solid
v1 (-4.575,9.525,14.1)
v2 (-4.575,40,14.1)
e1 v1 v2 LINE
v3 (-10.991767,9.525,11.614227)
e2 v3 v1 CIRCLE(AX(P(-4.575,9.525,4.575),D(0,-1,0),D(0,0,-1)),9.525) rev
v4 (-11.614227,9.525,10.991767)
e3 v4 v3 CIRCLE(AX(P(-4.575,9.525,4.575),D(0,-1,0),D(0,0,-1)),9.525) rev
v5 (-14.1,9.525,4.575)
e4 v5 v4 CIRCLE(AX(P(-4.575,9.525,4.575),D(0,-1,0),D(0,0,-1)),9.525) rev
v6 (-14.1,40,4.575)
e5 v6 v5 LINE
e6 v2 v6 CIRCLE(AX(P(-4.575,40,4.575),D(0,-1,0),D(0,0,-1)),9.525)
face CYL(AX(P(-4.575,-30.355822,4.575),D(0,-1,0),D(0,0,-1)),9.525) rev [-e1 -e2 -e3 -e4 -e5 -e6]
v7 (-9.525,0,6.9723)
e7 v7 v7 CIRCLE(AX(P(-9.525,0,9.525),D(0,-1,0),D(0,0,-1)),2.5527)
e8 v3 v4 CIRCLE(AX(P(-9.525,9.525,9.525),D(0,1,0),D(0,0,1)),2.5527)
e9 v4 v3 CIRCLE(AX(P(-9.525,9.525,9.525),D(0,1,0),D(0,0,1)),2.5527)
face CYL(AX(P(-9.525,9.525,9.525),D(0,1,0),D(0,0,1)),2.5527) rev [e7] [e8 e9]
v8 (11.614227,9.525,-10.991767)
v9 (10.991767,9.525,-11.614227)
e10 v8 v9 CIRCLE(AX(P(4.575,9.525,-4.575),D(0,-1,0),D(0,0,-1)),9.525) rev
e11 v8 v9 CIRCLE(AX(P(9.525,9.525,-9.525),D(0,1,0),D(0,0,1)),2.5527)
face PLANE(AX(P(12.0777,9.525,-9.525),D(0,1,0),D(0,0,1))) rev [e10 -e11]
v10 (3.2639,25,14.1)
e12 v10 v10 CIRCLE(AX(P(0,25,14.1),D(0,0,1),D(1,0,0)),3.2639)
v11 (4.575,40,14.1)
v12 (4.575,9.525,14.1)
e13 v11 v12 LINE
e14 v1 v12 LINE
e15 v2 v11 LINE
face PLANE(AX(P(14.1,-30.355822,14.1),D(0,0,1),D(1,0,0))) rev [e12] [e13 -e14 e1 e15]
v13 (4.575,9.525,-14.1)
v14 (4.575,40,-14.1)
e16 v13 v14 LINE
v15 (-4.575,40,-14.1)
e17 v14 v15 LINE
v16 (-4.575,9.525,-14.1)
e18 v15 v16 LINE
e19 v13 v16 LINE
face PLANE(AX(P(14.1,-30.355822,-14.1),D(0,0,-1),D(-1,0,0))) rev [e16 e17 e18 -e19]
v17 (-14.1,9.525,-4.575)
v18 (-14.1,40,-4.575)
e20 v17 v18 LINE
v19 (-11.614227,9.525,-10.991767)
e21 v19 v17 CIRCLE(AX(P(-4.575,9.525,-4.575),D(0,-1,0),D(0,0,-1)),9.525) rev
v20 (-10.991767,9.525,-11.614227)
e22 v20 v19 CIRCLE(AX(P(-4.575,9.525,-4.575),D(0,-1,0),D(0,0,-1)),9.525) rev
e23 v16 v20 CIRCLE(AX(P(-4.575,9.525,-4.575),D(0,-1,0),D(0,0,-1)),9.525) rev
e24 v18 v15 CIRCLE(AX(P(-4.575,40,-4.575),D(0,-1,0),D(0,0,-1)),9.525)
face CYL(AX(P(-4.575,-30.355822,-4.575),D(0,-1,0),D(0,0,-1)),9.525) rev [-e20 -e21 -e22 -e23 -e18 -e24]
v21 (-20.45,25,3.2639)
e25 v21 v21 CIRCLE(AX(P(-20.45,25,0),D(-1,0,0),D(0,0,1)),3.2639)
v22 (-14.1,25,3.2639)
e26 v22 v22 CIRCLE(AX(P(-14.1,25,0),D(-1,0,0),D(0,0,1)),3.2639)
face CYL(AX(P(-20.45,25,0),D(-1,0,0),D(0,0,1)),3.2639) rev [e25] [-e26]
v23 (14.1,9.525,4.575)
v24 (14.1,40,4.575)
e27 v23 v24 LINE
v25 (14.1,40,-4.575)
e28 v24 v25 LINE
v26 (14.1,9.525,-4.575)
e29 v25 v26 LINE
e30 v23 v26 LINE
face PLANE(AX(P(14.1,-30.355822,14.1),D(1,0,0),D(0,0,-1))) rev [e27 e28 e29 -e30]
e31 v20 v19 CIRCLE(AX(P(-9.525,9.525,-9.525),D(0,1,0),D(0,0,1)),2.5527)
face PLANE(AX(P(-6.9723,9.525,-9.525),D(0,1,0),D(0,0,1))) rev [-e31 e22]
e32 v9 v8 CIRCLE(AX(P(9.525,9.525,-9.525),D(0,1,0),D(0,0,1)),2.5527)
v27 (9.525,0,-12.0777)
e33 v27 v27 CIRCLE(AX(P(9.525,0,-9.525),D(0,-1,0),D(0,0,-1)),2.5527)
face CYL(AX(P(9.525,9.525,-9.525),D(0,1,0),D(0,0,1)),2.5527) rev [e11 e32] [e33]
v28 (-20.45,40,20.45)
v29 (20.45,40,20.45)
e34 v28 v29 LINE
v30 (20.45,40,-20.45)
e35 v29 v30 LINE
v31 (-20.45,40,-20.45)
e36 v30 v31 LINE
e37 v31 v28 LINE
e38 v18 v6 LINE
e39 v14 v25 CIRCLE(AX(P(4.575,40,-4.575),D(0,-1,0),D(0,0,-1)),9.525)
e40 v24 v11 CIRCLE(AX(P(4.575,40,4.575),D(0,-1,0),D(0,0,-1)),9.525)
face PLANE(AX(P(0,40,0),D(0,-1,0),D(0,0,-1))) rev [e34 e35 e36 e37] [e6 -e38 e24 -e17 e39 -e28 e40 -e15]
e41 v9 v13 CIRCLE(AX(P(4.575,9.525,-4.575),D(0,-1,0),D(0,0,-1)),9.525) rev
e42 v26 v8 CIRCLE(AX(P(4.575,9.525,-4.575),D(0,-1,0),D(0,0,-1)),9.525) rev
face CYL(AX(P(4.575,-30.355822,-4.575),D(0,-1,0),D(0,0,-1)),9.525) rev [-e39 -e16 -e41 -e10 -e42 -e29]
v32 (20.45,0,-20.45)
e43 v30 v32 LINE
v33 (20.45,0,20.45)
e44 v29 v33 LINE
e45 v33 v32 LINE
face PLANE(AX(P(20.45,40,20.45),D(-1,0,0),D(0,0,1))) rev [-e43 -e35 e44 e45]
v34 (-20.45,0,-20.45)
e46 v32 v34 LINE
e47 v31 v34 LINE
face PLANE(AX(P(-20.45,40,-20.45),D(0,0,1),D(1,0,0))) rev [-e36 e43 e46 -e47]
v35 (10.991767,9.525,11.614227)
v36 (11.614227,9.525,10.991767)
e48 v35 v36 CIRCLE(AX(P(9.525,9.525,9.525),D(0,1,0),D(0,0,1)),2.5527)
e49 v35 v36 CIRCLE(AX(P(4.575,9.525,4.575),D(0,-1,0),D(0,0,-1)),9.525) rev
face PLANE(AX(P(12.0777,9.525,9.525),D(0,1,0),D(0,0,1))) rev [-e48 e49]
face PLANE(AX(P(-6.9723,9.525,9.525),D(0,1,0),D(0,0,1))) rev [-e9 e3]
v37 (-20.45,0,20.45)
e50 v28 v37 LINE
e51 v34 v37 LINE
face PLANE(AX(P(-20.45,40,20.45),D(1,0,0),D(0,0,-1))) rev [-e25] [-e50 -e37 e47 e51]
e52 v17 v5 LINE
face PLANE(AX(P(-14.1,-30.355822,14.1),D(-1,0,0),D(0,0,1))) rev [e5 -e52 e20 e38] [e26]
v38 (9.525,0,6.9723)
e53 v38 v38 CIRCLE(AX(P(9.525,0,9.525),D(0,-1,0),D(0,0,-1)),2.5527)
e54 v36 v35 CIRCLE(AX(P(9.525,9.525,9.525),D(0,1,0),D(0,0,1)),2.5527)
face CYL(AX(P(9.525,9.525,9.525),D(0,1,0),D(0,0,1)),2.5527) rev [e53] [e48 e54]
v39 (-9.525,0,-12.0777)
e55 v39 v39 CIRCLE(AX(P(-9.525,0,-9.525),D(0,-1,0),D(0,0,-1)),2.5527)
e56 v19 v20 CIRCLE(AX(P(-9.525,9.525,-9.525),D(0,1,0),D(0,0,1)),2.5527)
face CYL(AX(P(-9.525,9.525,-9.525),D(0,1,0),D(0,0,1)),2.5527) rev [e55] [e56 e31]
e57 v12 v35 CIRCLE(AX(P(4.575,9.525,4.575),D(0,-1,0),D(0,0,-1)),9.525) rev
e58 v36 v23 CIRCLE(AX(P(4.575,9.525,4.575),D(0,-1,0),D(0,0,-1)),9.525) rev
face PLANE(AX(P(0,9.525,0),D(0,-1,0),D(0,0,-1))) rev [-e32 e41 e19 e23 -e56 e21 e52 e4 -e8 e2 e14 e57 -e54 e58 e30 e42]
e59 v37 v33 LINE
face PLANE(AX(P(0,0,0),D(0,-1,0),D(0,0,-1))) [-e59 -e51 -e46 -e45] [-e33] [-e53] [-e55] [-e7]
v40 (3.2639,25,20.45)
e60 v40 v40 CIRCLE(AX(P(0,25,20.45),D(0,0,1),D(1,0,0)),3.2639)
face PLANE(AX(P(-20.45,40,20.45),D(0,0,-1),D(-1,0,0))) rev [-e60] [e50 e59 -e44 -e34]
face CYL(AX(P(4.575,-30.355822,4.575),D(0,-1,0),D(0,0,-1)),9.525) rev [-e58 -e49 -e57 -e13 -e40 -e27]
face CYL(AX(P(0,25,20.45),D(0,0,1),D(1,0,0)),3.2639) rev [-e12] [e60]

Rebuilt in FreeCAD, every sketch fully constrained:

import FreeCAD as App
import Part
import Sketcher
from FreeCAD import Vector
Q = App.Units.Quantity


def edges_at(feature, points):
    """Names of the edges that pass closest to the given points."""
    edges = feature.Shape.Edges
    near = lambda p: min(range(len(edges)), key=lambda i: edges[i].distToShape(Part.Vertex(*p))[0])
    return sorted({f"Edge{near(p) + 1}" for p in points})

doc = App.newDocument("Part")
body = doc.addObject("PartDesign::Body", "Body")

# Sketch on XZ plane
sketch1 = body.newObject("Sketcher::SketchObject", "Sketch")
sketch1.AttachmentSupport = (doc.getObject("XZ_Plane"), [""])
sketch1.MapMode = "FlatFace"
sketch1.addGeometry([
    Part.LineSegment(Vector(-20, -20, 0), Vector(-20, 20, 0)),
    Part.LineSegment(Vector(-20, 20, 0), Vector(20, 20, 0)),
    Part.LineSegment(Vector(20, 20, 0), Vector(20, -20, 0)),
    Part.LineSegment(Vector(20, -20, 0), Vector(-20, -20, 0)),
], False)
sketch1.addConstraint([
    Sketcher.Constraint("Coincident", 0, 2, 1, 1),
    Sketcher.Constraint("Coincident", 1, 2, 2, 1),
    Sketcher.Constraint("Coincident", 2, 2, 3, 1),
    Sketcher.Constraint("Coincident", 3, 2, 0, 1),
    Sketcher.Constraint("Vertical", 0),
    Sketcher.Constraint("Horizontal", 1),
    Sketcher.Constraint("Vertical", 2),
    Sketcher.Constraint("Horizontal", 3),
    Sketcher.Constraint("Symmetric", 0, 2, 2, 2, -1, 1),
    Sketcher.Constraint("Equal", 3, 0),
    Sketcher.Constraint("DistanceX", 1, 1, 1, 2, Q("40.9 mm")),
])
pad1 = body.newObject("PartDesign::Pad", "Pad")
pad1.Profile = sketch1
pad1.Length = 40
pad1.Reversed = True

# Sketch on XZ plane
sketch2 = body.newObject("Sketcher::SketchObject", "Sketch001")
sketch2.AttachmentSupport = (doc.getObject("XZ_Plane"), [""])
sketch2.MapMode = "FlatFace"
sketch2.AttachmentOffset = App.Placement(Vector(0, 0, -9.525), App.Rotation())
sketch2.addGeometry([
    Part.LineSegment(Vector(-14, -14, 0), Vector(-14, 14, 0)),
    Part.LineSegment(Vector(-14, 14, 0), Vector(14, 14, 0)),
    Part.LineSegment(Vector(14, 14, 0), Vector(14, -14, 0)),
    Part.LineSegment(Vector(14, -14, 0), Vector(-14, -14, 0)),
], False)
sketch2.addConstraint([
    Sketcher.Constraint("Coincident", 0, 2, 1, 1),
    Sketcher.Constraint("Coincident", 1, 2, 2, 1),
    Sketcher.Constraint("Coincident", 2, 2, 3, 1),
    Sketcher.Constraint("Coincident", 3, 2, 0, 1),
    Sketcher.Constraint("Vertical", 0),
    Sketcher.Constraint("Horizontal", 1),
    Sketcher.Constraint("Vertical", 2),
    Sketcher.Constraint("Horizontal", 3),
    Sketcher.Constraint("Symmetric", 0, 2, 2, 2, -1, 1),
    Sketcher.Constraint("Equal", 3, 0),
    Sketcher.Constraint("DistanceX", 1, 1, 1, 2, Q("28.2 mm")),
])
pocket1 = body.newObject("PartDesign::Pocket", "Pocket")
pocket1.Profile = sketch2
pocket1.Length = 30.475
doc.recompute()

fillet = body.newObject("PartDesign::Fillet", "Fillet")
fillet.Base = (pocket1, edges_at(pocket1, [
    (14.1, 24.762, 14.1),
    (14.1, 24.762, -14.1),
    (-14.1, 24.762, -14.1),
    (-14.1, 24.762, 14.1),
]))
fillet.Radius = 9.525

# Sketch on YZ plane
sketch3 = body.newObject("Sketcher::SketchObject", "Sketch002")
sketch3.AttachmentSupport = (doc.getObject("YZ_Plane"), [""])
sketch3.MapMode = "FlatFace"
sketch3.addGeometry([
    Part.LineSegment(Vector(25, -4.4, 0), Vector(25, 20.4, 0)),
    Part.LineSegment(Vector(25, 20.4, 0), Vector(21.7, 20.4, 0)),
    Part.LineSegment(Vector(21.7, 20.4, 0), Vector(21.7, -2.5, 0)),
    Part.LineSegment(Vector(21.7, -2.5, 0), Vector(25, -4.4, 0)),
], False)
sketch3.addGeometry(Part.LineSegment(Vector(25, 20.4, 0), Vector(25, -4.4, 0)), True)  # axis
sketch3.addConstraint([
    Sketcher.Constraint("Coincident", 0, 2, 1, 1),
    Sketcher.Constraint("Coincident", 1, 2, 2, 1),
    Sketcher.Constraint("Coincident", 2, 2, 3, 1),
    Sketcher.Constraint("Coincident", 3, 2, 0, 1),
    Sketcher.Constraint("Vertical", 0),
    Sketcher.Constraint("Horizontal", 1),
    Sketcher.Constraint("Vertical", 2),
    Sketcher.Constraint("Vertical", 4),
    Sketcher.Constraint("Coincident", 4, 1, 0, 2),
    Sketcher.Constraint("Equal", 0, 4),
    Sketcher.Constraint("Angle", 3, Q("-31 deg")),
    Sketcher.Constraint("DistanceX", -1, 1, 0, 2, Q("25 mm")),
    Sketcher.Constraint("DistanceY", -1, 1, 0, 2, Q("20.45 mm")),
    Sketcher.Constraint("DistanceX", 1, 2, 1, 1, Q("3.2639 mm")),
    Sketcher.Constraint("DistanceY", 2, 2, 2, 1, Q("22.9235 mm")),
])
groove = body.newObject("PartDesign::Groove", "Groove")
groove.Profile = sketch3
groove.ReferenceAxis = (sketch3, ["Axis0"])
groove.Angle = 360
doc.recompute()

polarpattern = body.newObject("PartDesign::PolarPattern", "PolarPattern")
polarpattern.Originals = [groove]
polarpattern.Axis = (doc.getObject("Y_Axis"), [""])
polarpattern.Angle = 90
polarpattern.Occurrences = 2
polarpattern.Reversed = True
body.Tip = polarpattern

# Sketch on YZ plane
sketch4 = body.newObject("Sketcher::SketchObject", "Sketch003")
sketch4.AttachmentSupport = (doc.getObject("YZ_Plane"), [""])
sketch4.MapMode = "FlatFace"
sketch4.AttachmentOffset = App.Placement(Vector(0, 0, -9.525), App.Rotation())
sketch4.addGeometry([
    Part.LineSegment(Vector(0, -9.5, 0), Vector(9.5, -9.5, 0)),
    Part.LineSegment(Vector(9.5, -9.5, 0), Vector(9.5, -7, 0)),
    Part.LineSegment(Vector(9.5, -7, 0), Vector(0, -7, 0)),
    Part.LineSegment(Vector(0, -7, 0), Vector(0, -9.5, 0)),
], False)
sketch4.addGeometry(Part.LineSegment(Vector(9.5, -9.5, 0), Vector(0, -9.5, 0)), True)  # axis
sketch4.addConstraint([
    Sketcher.Constraint("Coincident", 0, 2, 1, 1),
    Sketcher.Constraint("Coincident", 1, 2, 2, 1),
    Sketcher.Constraint("Coincident", 2, 2, 3, 1),
    Sketcher.Constraint("Coincident", 3, 2, 0, 1),
    Sketcher.Constraint("Horizontal", 0),
    Sketcher.Constraint("Vertical", 1),
    Sketcher.Constraint("Horizontal", 2),
    Sketcher.Constraint("Vertical", 3),
    Sketcher.Constraint("Horizontal", 4),
    Sketcher.Constraint("Coincident", 4, 1, 0, 2),
    Sketcher.Constraint("PointOnObject", 2, 2, -2),
    Sketcher.Constraint("PointOnObject", 4, 2, -2),
    Sketcher.Constraint("DistanceX", 0, 1, 0, 2, Q("9.525 mm")),
    Sketcher.Constraint("DistanceY", 1, 1, 1, 2, Q("2.5527 mm")),
    Sketcher.Constraint("DistanceY", 0, 2, -1, 1, Q("9.525 mm")),
])
groove2 = body.newObject("PartDesign::Groove", "Groove001")
groove2.Profile = sketch4
groove2.ReferenceAxis = (sketch4, ["Axis0"])
groove2.Angle = 360
doc.recompute()

linearpattern = body.newObject("PartDesign::LinearPattern", "LinearPattern")
linearpattern.Originals = [groove2]
linearpattern.Direction = (doc.getObject("X_Axis"), [""])
linearpattern.Mode = "offset"
linearpattern.Offset = 19.05
linearpattern.Occurrences = 2
body.Tip = linearpattern
doc.recompute()

datumline = body.newObject("PartDesign::Line", "DatumLine")
datumline.Placement = App.Placement(Vector(0, 0, 0), App.Rotation(Vector(0, 0, 1), Vector(0.707106781, 0, 0.707106781)))
linearpattern2 = body.newObject("PartDesign::LinearPattern", "LinearPattern001")
linearpattern2.Originals = [groove2]
linearpattern2.Direction = (datumline, [""])
linearpattern2.Mode = "offset"
linearpattern2.Offset = 26.940768
linearpattern2.Occurrences = 2
body.Tip = linearpattern2
doc.recompute()

linearpattern3 = body.newObject("PartDesign::LinearPattern", "LinearPattern002")
linearpattern3.Originals = [groove2]
linearpattern3.Direction = (doc.getObject("Z_Axis"), [""])
linearpattern3.Mode = "offset"
linearpattern3.Offset = 19.05
linearpattern3.Occurrences = 2
body.Tip = linearpattern3

doc.recompute()
